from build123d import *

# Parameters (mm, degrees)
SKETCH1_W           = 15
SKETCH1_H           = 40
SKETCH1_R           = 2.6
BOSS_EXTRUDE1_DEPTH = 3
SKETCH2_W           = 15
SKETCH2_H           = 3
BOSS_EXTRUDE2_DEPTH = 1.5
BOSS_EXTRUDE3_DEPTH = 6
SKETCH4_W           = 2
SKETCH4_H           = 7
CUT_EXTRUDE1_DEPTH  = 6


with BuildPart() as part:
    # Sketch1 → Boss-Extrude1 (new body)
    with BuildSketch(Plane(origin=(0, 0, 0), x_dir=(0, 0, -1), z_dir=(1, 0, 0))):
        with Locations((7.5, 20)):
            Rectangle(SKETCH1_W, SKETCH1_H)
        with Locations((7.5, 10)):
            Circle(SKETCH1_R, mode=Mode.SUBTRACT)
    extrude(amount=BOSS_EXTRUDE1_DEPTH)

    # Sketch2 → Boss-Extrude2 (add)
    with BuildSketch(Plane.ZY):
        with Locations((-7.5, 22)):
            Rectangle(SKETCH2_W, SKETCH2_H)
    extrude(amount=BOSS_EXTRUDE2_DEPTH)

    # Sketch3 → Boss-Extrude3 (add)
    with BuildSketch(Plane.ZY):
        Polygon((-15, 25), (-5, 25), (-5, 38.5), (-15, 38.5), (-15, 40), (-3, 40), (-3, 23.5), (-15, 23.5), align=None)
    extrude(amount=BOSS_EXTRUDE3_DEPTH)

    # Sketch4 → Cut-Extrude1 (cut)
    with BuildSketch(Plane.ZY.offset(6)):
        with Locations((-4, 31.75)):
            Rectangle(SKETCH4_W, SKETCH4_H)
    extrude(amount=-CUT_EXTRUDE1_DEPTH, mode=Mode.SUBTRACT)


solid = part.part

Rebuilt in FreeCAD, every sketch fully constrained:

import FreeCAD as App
import Part
import Sketcher
from FreeCAD import Vector
Q = App.Units.Quantity


def add_polygon(sketch, points):
    """Adds a closed chain of lines whose ends are joined by coincident constraints."""
    first, n = sketch.GeometryCount, len(points)
    for a, b in zip(points, points[1:] + points[:1]):
        sketch.addGeometry(Part.LineSegment(App.Vector(*a, 0), App.Vector(*b, 0)), False)
    for i in range(n):
        sketch.addConstraint(Sketcher.Constraint("Coincident", first + i, 2, first + (i + 1) % n, 1))

doc = App.newDocument("Part")
body = doc.addObject("PartDesign::Body", "Body")

sketch1 = body.newObject("Sketcher::SketchObject", "Sketch")
sketch1.AttachmentSupport = (doc.getObject("YZ_Plane"), [""])
sketch1.MapMode = "FlatFace"
add_polygon(sketch1, [(40, 0), (0, 0), (0, -15), (40, -15)])
sketch1.addGeometry(Part.Circle(Vector(10, -7.5, 0), Vector(0, 0, 1), 2.6), False)
sketch1.addConstraint([
    Sketcher.Constraint("Horizontal", 0),
    Sketcher.Constraint("Vertical", 1),
    Sketcher.Constraint("Horizontal", 2),
    Sketcher.Constraint("Vertical", 3),
    Sketcher.Constraint("Coincident", 0, 2, -1, 1),
    Sketcher.Constraint("Diameter", 4, Q("5.2 mm")),
    Sketcher.Constraint("DistanceX", 0, 2, 0, 1, Q("40 mm")),
    Sketcher.Constraint("DistanceY", 1, 2, 1, 1, Q("15 mm")),
    Sketcher.Constraint("DistanceX", -1, 1, 4, 3, Q("10 mm")),
    Sketcher.Constraint("DistanceY", 4, 3, -1, 1, Q("7.5 mm")),
])
pad1 = body.newObject("PartDesign::Pad", "Pad")
pad1.Profile = sketch1
pad1.Length = 3

sketch2 = body.newObject("Sketcher::SketchObject", "Sketch001")
sketch2.AttachmentSupport = (doc.getObject("YZ_Plane"), [""])
sketch2.MapMode = "FlatFace"
add_polygon(sketch2, [(23.5, -15), (20.5, -15), (20.5, 0), (23.5, 0)])
sketch2.addConstraint([
    Sketcher.Constraint("Horizontal", 0),
    Sketcher.Constraint("Vertical", 1),
    Sketcher.Constraint("Horizontal", 2),
    Sketcher.Constraint("Vertical", 3),
    Sketcher.Constraint("PointOnObject", 1, 2, -1),
    Sketcher.Constraint("DistanceX", 0, 2, 0, 1, Q("3 mm")),
    Sketcher.Constraint("DistanceY", 1, 1, 1, 2, Q("15 mm")),
    Sketcher.Constraint("DistanceX", -1, 1, 0, 2, Q("20.5 mm")),
])
pad2 = body.newObject("PartDesign::Pad", "Pad001")
pad2.Profile = sketch2
pad2.Length = 1.5
pad2.Reversed = True

sketch3 = body.newObject("Sketcher::SketchObject", "Sketch002")
sketch3.AttachmentSupport = (doc.getObject("YZ_Plane"), [""])
sketch3.MapMode = "FlatFace"
add_polygon(sketch3, [(25, -5), (25, -15), (23.5, -15), (23.5, -3), (40, -3), (40, -15), (38.5, -15), (38.5, -5)])
sketch3.addConstraint([
    Sketcher.Constraint("Vertical", 0),
    Sketcher.Constraint("Horizontal", 1),
    Sketcher.Constraint("Vertical", 2),
    Sketcher.Constraint("Horizontal", 3),
    Sketcher.Constraint("Vertical", 4),
    Sketcher.Constraint("Horizontal", 5),
    Sketcher.Constraint("Vertical", 6),
    Sketcher.Constraint("Horizontal", 7),
    Sketcher.Constraint("Horizontal", 1, 2, 4, 2),
    Sketcher.Constraint("Equal", 1, 5),
    Sketcher.Constraint("DistanceY", 0, 2, 0, 1, Q("10 mm")),
    Sketcher.Constraint("DistanceY", 2, 1, 2, 2, Q("12 mm")),
    Sketcher.Constraint("DistanceX", 1, 2, 1, 1, Q("1.5 mm")),
    Sketcher.Constraint("DistanceX", 3, 1, 3, 2, Q("16.5 mm")),
    Sketcher.Constraint("DistanceX", -1, 1, 0, 2, Q("25 mm")),
    Sketcher.Constraint("DistanceY", 0, 2, -1, 1, Q("15 mm")),
])
pad3 = body.newObject("PartDesign::Pad", "Pad002")
pad3.Profile = sketch3
pad3.Length = 6
pad3.Reversed = True

sketch4 = body.newObject("Sketcher::SketchObject", "Sketch003")
sketch4.AttachmentSupport = (doc.getObject("YZ_Plane"), [""])
sketch4.MapMode = "FlatFace"
sketch4.AttachmentOffset = App.Placement(Vector(0, 0, -6), App.Rotation())
add_polygon(sketch4, [(35.25, -5), (28.25, -5), (28.25, -3), (35.25, -3)])
sketch4.addConstraint([
    Sketcher.Constraint("Horizontal", 0),
    Sketcher.Constraint("Vertical", 1),
    Sketcher.Constraint("Horizontal", 2),
    Sketcher.Constraint("Vertical", 3),
    Sketcher.Constraint("DistanceX", 0, 2, 0, 1, Q("7 mm")),
    Sketcher.Constraint("DistanceY", 1, 1, 1, 2, Q("2 mm")),
    Sketcher.Constraint("DistanceY", 0, 2, -1, 1, Q("5 mm")),
    Sketcher.Constraint("DistanceX", -1, 1, 0, 2, Q("28.25 mm")),
])
pocket1 = body.newObject("PartDesign::Pocket", "Pocket")
pocket1.Profile = sketch4
pocket1.Length = 6
pocket1.Reversed = True

doc.recompute()
